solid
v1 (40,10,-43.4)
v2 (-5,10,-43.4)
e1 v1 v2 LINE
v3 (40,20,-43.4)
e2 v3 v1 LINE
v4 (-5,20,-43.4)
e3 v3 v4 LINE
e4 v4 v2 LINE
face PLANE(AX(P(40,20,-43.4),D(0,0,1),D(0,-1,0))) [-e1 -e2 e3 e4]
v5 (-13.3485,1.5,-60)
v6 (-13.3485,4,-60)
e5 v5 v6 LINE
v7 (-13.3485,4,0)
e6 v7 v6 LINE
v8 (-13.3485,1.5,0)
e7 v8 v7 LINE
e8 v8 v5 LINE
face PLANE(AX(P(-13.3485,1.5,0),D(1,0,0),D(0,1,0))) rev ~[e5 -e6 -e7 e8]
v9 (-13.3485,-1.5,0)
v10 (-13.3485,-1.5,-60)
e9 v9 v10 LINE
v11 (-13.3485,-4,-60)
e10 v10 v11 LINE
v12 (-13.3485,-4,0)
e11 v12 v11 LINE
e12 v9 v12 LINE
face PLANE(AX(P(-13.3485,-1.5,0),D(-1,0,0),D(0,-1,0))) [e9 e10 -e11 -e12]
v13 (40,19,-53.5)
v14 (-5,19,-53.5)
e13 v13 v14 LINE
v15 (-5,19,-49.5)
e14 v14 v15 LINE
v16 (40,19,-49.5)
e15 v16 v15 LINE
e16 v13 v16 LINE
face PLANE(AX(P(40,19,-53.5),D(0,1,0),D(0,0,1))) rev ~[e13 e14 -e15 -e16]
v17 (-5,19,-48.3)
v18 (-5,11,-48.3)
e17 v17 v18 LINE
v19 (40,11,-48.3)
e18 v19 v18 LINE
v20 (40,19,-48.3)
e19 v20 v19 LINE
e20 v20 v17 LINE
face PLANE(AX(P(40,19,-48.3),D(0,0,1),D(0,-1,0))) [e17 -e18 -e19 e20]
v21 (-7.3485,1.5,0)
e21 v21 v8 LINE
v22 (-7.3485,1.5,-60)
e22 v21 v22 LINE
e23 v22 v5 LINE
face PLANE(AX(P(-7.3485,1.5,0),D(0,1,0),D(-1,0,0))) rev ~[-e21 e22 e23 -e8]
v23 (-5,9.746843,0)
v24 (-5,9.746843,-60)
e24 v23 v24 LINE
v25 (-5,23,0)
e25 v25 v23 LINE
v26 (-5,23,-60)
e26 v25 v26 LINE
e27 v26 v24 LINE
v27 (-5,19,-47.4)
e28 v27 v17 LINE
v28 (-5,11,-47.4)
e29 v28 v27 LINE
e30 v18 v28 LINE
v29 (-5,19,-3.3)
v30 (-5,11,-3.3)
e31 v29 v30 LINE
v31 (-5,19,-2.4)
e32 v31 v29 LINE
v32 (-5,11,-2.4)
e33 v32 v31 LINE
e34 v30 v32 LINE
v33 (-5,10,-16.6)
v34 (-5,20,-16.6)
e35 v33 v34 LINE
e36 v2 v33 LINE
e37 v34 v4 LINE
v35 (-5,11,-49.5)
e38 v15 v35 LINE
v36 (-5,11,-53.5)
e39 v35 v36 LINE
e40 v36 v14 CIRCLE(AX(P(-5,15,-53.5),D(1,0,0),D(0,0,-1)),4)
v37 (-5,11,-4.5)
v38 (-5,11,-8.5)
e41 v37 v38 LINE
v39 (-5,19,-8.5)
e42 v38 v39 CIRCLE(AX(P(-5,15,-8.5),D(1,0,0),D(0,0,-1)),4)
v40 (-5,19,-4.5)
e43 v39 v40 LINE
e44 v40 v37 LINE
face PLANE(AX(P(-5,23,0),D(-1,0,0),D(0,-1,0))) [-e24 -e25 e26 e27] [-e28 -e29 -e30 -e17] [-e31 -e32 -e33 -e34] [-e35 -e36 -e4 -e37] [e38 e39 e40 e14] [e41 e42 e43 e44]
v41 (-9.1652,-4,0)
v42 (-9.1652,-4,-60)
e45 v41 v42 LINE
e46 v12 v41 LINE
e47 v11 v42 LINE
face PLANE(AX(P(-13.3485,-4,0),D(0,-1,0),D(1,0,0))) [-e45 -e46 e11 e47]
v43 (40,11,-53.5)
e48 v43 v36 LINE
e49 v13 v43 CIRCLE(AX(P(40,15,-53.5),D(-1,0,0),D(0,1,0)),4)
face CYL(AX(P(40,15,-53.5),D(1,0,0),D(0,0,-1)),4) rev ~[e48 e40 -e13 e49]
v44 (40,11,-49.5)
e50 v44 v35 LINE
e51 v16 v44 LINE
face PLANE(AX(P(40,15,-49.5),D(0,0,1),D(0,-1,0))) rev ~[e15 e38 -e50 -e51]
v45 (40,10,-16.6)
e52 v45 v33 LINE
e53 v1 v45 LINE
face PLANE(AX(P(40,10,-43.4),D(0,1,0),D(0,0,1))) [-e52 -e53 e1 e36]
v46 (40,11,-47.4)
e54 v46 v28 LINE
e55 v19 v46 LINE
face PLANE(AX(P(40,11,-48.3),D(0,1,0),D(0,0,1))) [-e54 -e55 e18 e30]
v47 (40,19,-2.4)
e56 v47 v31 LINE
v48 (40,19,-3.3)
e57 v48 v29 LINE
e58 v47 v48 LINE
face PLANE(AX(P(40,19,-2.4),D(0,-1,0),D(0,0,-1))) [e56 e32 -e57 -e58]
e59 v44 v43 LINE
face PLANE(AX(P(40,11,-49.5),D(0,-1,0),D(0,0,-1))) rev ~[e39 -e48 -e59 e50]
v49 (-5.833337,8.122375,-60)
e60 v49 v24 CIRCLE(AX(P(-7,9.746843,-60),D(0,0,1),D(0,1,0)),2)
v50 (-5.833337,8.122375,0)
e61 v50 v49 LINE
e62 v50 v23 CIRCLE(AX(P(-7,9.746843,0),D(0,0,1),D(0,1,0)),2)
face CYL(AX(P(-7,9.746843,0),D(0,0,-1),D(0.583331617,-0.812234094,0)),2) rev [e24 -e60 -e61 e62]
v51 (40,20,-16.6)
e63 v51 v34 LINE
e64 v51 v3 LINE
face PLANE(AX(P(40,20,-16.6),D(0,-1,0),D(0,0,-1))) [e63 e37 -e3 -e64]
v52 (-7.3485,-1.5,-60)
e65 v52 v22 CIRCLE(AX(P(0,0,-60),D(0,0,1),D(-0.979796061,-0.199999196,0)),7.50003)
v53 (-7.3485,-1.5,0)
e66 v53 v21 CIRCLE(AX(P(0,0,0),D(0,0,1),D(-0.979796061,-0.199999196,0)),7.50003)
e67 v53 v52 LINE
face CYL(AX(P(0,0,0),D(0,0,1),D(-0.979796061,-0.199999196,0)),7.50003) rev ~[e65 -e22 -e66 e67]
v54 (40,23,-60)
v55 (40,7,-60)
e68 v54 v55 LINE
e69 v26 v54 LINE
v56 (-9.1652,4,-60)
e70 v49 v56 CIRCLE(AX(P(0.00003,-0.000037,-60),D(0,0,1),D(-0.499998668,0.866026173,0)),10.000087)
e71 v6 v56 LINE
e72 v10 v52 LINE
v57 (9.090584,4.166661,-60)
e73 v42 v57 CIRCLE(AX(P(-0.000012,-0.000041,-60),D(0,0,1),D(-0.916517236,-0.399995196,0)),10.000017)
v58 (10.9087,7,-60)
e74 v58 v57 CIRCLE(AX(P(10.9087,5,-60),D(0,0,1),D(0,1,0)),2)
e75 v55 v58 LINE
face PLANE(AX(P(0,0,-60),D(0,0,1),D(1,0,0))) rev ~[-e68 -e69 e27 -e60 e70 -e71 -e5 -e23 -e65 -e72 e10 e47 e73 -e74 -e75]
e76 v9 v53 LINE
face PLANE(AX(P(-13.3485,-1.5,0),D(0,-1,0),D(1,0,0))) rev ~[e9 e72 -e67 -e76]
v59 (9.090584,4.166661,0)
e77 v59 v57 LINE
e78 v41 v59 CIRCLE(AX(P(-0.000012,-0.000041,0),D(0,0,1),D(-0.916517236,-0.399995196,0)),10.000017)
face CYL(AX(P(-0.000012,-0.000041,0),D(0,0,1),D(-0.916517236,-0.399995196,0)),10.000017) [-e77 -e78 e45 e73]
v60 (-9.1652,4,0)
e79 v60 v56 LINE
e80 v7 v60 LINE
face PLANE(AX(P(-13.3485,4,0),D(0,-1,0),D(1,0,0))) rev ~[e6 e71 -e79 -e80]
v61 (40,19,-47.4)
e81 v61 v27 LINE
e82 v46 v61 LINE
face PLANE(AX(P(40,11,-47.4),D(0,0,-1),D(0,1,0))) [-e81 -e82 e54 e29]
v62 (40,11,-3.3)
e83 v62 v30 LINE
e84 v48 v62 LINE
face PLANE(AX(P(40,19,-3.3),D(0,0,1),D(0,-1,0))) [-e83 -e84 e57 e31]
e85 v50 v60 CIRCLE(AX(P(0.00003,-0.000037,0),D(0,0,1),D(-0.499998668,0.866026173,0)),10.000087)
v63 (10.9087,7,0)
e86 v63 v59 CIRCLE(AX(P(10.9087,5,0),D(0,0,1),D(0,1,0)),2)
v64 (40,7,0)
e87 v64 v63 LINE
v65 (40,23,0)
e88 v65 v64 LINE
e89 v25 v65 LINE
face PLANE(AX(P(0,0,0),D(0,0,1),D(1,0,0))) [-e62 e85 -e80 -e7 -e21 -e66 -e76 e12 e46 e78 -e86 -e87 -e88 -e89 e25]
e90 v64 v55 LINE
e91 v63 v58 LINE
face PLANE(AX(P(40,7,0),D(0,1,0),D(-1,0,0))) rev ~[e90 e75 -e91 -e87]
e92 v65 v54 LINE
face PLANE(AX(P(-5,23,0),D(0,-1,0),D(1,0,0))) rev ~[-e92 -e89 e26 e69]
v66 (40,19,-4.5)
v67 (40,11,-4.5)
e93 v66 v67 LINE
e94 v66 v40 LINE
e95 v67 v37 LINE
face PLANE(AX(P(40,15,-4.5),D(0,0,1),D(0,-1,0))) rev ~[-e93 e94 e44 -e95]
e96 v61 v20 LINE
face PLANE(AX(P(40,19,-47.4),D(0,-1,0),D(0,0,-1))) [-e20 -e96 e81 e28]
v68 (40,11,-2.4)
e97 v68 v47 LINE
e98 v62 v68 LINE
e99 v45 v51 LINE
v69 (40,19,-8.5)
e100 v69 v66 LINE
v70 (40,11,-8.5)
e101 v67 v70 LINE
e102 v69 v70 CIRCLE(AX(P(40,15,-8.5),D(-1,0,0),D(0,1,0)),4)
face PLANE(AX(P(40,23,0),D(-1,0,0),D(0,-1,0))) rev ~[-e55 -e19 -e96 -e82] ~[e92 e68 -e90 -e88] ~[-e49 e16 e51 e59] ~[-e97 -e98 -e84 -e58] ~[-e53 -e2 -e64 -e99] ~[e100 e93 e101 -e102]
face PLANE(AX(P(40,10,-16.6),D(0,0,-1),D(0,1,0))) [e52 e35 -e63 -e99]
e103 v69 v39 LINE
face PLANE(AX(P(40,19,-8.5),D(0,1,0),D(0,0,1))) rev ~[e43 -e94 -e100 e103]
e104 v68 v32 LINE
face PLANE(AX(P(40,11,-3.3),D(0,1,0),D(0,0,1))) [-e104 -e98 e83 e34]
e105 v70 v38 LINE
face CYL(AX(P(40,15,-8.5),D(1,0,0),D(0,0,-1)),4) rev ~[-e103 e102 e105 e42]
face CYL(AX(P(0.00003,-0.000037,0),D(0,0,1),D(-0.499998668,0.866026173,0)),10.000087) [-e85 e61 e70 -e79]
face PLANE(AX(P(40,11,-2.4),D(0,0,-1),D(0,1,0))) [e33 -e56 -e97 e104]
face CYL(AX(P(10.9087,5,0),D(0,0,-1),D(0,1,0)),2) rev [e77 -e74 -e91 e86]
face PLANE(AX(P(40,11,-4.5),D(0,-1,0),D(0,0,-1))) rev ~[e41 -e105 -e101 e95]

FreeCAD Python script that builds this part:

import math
import FreeCAD as App
import Part
import Sketcher

V = App.Vector


def edges_at(feature, points):
    """Names of the edges that pass closest to the given points."""
    edges = feature.Shape.Edges
    near = lambda p: min(range(len(edges)), key=lambda i: edges[i].distToShape(Part.Vertex(*p))[0])
    return sorted({f"Edge{near(p) + 1}" for p in points})


def add_polygon(sketch, points):
    """Adds a closed chain of lines whose ends are joined by coincident constraints."""
    first, n = sketch.GeometryCount, len(points)
    for a, b in zip(points, points[1:] + points[:1]):
        sketch.addGeometry(Part.LineSegment(App.Vector(*a, 0), App.Vector(*b, 0)), False)
    for i in range(n):
        sketch.addConstraint(Sketcher.Constraint("Coincident", first + i, 2, first + (i + 1) % n, 1))

doc = App.newDocument("Part")
params = doc.addObject("Spreadsheet::Sheet", "Params")
for row, (alias, value) in enumerate([
    ("sketch1_radius", "10 mm"),
    ("sketch1_radius2", "7.5 mm"),
    ("sketch1_width", "6 mm"),
    ("sketch1_width2", "45 mm"),
    ("sketch1_height", "16 mm"),
    ("pad1_length", "60 mm"),
    ("fillet_radius", "2 mm"),
    ("sketch2_radius", "4 mm"),
    ("sketch2_width", "10 mm"),
    ("sketch2_height", "4 mm"),
    ("sketch2_height2", "0.9 mm"),
    ("sketch2_height3", "26.8 mm"),
], start=1):
    params.set(f"A{row}", alias)
    params.set(f"B{row}", "=" + value)
    params.setAlias(f"B{row}", alias)

body = doc.addObject("PartDesign::Body", "Body")

# Sketch on XY plane
sketch1 = body.newObject("Sketcher::SketchObject", "Sketch")
sketch1.AttachmentSupport = (doc.getObject("XY_Plane"), [""])
sketch1.MapMode = "FlatFace"
sketch1.addGeometry(Part.LineSegment(V(-13.3, 1.5, 0), V(-7.3, 1.5, 0)), False)
sketch1.addGeometry(Part.ArcOfCircle(Part.Circle(V(0, 0, 0), V(0, 0, 1), 7.5), math.radians(-168), math.radians(168)), False)
sketch1.addGeometry(Part.LineSegment(V(-7.3, -1.5, 0), V(-13.3, -1.5, 0)), False)
sketch1.addGeometry(Part.LineSegment(V(-13.3, -1.5, 0), V(-13.3, -4, 0)), False)
sketch1.addGeometry(Part.LineSegment(V(-13.3, -4, 0), V(-9.2, -4, 0)), False)
sketch1.addGeometry(Part.ArcOfCircle(Part.Circle(V(0, 0, 0), V(0, 0, 1), 10), math.radians(-156), math.radians(44)), False)
sketch1.addGeometry(Part.LineSegment(V(7.1, 7, 0), V(40, 7, 0)), False)
sketch1.addGeometry(Part.LineSegment(V(40, 7, 0), V(40, 23, 0)), False)
sketch1.addGeometry(Part.LineSegment(V(40, 23, 0), V(-5, 23, 0)), False)
sketch1.addGeometry(Part.LineSegment(V(-5, 23, 0), V(-5, 8.7, 0)), False)
sketch1.addGeometry(Part.ArcOfCircle(Part.Circle(V(0, 0, 0), V(0, 0, 1), 10), math.radians(120), math.radians(156)), False)
sketch1.addGeometry(Part.LineSegment(V(-9.2, 4, 0), V(-13.3, 4, 0)), False)
sketch1.addGeometry(Part.LineSegment(V(-13.3, 4, 0), V(-13.3, 1.5, 0)), False)
sketch1.addConstraint(Sketcher.Constraint("Coincident", 0, 2, 1, 2))
sketch1.addConstraint(Sketcher.Constraint("Coincident", 1, 1, 2, 1))
sketch1.addConstraint(Sketcher.Constraint("Coincident", 2, 2, 3, 1))
sketch1.addConstraint(Sketcher.Constraint("Coincident", 3, 2, 4, 1))
sketch1.addConstraint(Sketcher.Constraint("Coincident", 4, 2, 5, 1))
sketch1.addConstraint(Sketcher.Constraint("Coincident", 5, 2, 6, 1))
sketch1.addConstraint(Sketcher.Constraint("Coincident", 6, 2, 7, 1))
sketch1.addConstraint(Sketcher.Constraint("Coincident", 7, 2, 8, 1))
sketch1.addConstraint(Sketcher.Constraint("Coincident", 8, 2, 9, 1))
sketch1.addConstraint(Sketcher.Constraint("Coincident", 9, 2, 10, 1))
sketch1.addConstraint(Sketcher.Constraint("Coincident", 10, 2, 11, 1))
sketch1.addConstraint(Sketcher.Constraint("Coincident", 11, 2, 12, 1))
sketch1.addConstraint(Sketcher.Constraint("Coincident", 12, 2, 0, 1))
sketch1.addConstraint(Sketcher.Constraint("Horizontal", 0))
sketch1.addConstraint(Sketcher.Constraint("Horizontal", 2))
sketch1.addConstraint(Sketcher.Constraint("Vertical", 3))
sketch1.addConstraint(Sketcher.Constraint("Horizontal", 4))
sketch1.addConstraint(Sketcher.Constraint("Horizontal", 6))
sketch1.addConstraint(Sketcher.Constraint("Vertical", 7))
sketch1.addConstraint(Sketcher.Constraint("Horizontal", 8))
sketch1.addConstraint(Sketcher.Constraint("Vertical", 9))
sketch1.addConstraint(Sketcher.Constraint("Horizontal", 11))
sketch1.addConstraint(Sketcher.Constraint("Vertical", 12))
sketch1.addConstraint(Sketcher.Constraint("Coincident", 1, 3, -1, 1))
sketch1.addConstraint(Sketcher.Constraint("Coincident", 5, 3, -1, 1))
sketch1.addConstraint(Sketcher.Constraint("Coincident", 10, 3, -1, 1))
sketch1.addConstraint(Sketcher.Constraint("Equal", 5, 10))
sketch1.addConstraint(Sketcher.Constraint("Symmetric", 3, 2, 11, 2, -1))
sketch1.addConstraint(Sketcher.Constraint("Vertical", 0, 2, 1, 1))
sketch1.addConstraint(Sketcher.Constraint("Radius", 5, 10.0))
sketch1.addConstraint(Sketcher.Constraint("Radius", 1, 7.5))
sketch1.addConstraint(Sketcher.Constraint("DistanceX", 0, 1, 0, 2, 6.0))
sketch1.addConstraint(Sketcher.Constraint("DistanceX", 8, 2, 8, 1, 45.0))
sketch1.addConstraint(Sketcher.Constraint("DistanceY", 7, 1, 7, 2, 16.0))
sketch1.addConstraint(Sketcher.Constraint("DistanceY", 3, 2, 3, 1, 2.5))
sketch1.addConstraint(Sketcher.Constraint("DistanceX", 8, 2, -1, 1, 5.0))
sketch1.addConstraint(Sketcher.Constraint("DistanceY", 1, 1, 0, 2, 3.0))
sketch1.addConstraint(Sketcher.Constraint("DistanceY", -1, 1, 5, 2, 7.0))
sketch1.setExpression("Constraints[29]", "Params.sketch1_radius")
sketch1.setExpression("Constraints[30]", "Params.sketch1_radius2")
sketch1.setExpression("Constraints[31]", "Params.sketch1_width")
sketch1.setExpression("Constraints[32]", "Params.sketch1_width2")
sketch1.setExpression("Constraints[33]", "Params.sketch1_height")
pad1 = body.newObject("PartDesign::Pad", "Pad")
pad1.Profile = sketch1
pad1.setExpression("Length", "Params.pad1_length")
pad1.Reversed = True
doc.recompute()

fillet = body.newObject("PartDesign::Fillet", "Fillet")
fillet.Base = (pad1, edges_at(pad1, [(7.141, 7, -30), (-5, 8.66, -30)]))
fillet.setExpression("Radius", "Params.fillet_radius")

# Sketch on YZ plane
sketch2 = body.newObject("Sketcher::SketchObject", "Sketch001")
sketch2.AttachmentSupport = (doc.getObject("YZ_Plane"), [""])
sketch2.MapMode = "FlatFace"
sketch2.AttachmentOffset = App.Placement(V(0, 0, 40), App.Rotation())
sketch2.addGeometry(Part.ArcOfCircle(Part.Circle(V(15, -8.5, 0), V(0, 0, 1), 4), math.radians(180), math.radians(360)), False)  # 0
sketch2.addGeometry(Part.LineSegment(V(19, -8.5, 0), V(19, -4.5, 0)), False)  # 1
sketch2.addGeometry(Part.LineSegment(V(19, -4.5, 0), V(11, -4.5, 0)), False)  # 2
sketch2.addGeometry(Part.LineSegment(V(11, -4.5, 0), V(11, -8.5, 0)), False)  # 3
add_polygon(sketch2, [(11, -2.4), (11, -3.3), (19, -3.3), (19, -2.4)])  # lines 4-7
sketch2.addGeometry(Part.ArcOfCircle(Part.Circle(V(15, -53.5, 0), V(0, 0, 1), 4), math.radians(180), math.radians(360)), False)  # 8
sketch2.addGeometry(Part.LineSegment(V(19, -53.5, 0), V(19, -49.5, 0)), False)  # 9
sketch2.addGeometry(Part.LineSegment(V(19, -49.5, 0), V(11, -49.5, 0)), False)  # 10
sketch2.addGeometry(Part.LineSegment(V(11, -49.5, 0), V(11, -53.5, 0)), False)  # 11
add_polygon(sketch2, [(11, -47.4), (11, -48.3), (19, -48.3), (19, -47.4)])  # lines 12-15
add_polygon(sketch2, [(10, -16.6), (10, -43.4), (20, -43.4), (20, -16.6)])  # lines 16-19
sketch2.addConstraint(Sketcher.Constraint("Tangent", 0, 2, 1, 1))
sketch2.addConstraint(Sketcher.Constraint("Coincident", 1, 2, 2, 1))
sketch2.addConstraint(Sketcher.Constraint("Coincident", 2, 2, 3, 1))
sketch2.addConstraint(Sketcher.Constraint("Tangent", 3, 2, 0, 1))
sketch2.addConstraint(Sketcher.Constraint("Tangent", 8, 2, 9, 1))
sketch2.addConstraint(Sketcher.Constraint("Coincident", 9, 2, 10, 1))
sketch2.addConstraint(Sketcher.Constraint("Coincident", 10, 2, 11, 1))
sketch2.addConstraint(Sketcher.Constraint("Tangent", 11, 2, 8, 1))
sketch2.addConstraint(Sketcher.Constraint("Vertical", 1))
sketch2.addConstraint(Sketcher.Constraint("Horizontal", 2))
sketch2.addConstraint(Sketcher.Constraint("Vertical", 3))
sketch2.addConstraint(Sketcher.Constraint("Vertical", 4))
sketch2.addConstraint(Sketcher.Constraint("Horizontal", 5))
sketch2.addConstraint(Sketcher.Constraint("Vertical", 6))
sketch2.addConstraint(Sketcher.Constraint("Horizontal", 7))
sketch2.addConstraint(Sketcher.Constraint("Vertical", 9))
sketch2.addConstraint(Sketcher.Constraint("Horizontal", 10))
sketch2.addConstraint(Sketcher.Constraint("Vertical", 11))
sketch2.addConstraint(Sketcher.Constraint("Vertical", 12))
sketch2.addConstraint(Sketcher.Constraint("Horizontal", 13))
sketch2.addConstraint(Sketcher.Constraint("Vertical", 14))
sketch2.addConstraint(Sketcher.Constraint("Horizontal", 15))
sketch2.addConstraint(Sketcher.Constraint("Vertical", 16))
sketch2.addConstraint(Sketcher.Constraint("Horizontal", 17))
sketch2.addConstraint(Sketcher.Constraint("Vertical", 18))
sketch2.addConstraint(Sketcher.Constraint("Horizontal", 19))
sketch2.addConstraint(Sketcher.Constraint("Equal", 0, 8))
sketch2.addConstraint(Sketcher.Constraint("Vertical", 0, 3, 8, 3))
sketch2.addConstraint(Sketcher.Constraint("Vertical", 3, 2, 4, 2))
sketch2.addConstraint(Sketcher.Constraint("Vertical", 1, 2, 5, 2))
sketch2.addConstraint(Sketcher.Constraint("Vertical", 11, 2, 12, 2))
sketch2.addConstraint(Sketcher.Constraint("Vertical", 9, 2, 13, 2))
sketch2.addConstraint(Sketcher.Constraint("Equal", 3, 9))
sketch2.addConstraint(Sketcher.Constraint("Equal", 6, 12))
sketch2.addConstraint(Sketcher.Constraint("Radius", 0, 4.0))
sketch2.addConstraint(Sketcher.Constraint("DistanceX", 17, 1, 17, 2, 10.0))
sketch2.addConstraint(Sketcher.Constraint("DistanceY", 1, 1, 1, 2, 4.0))
sketch2.addConstraint(Sketcher.Constraint("DistanceY", 4, 2, 4, 1, 0.9))
sketch2.addConstraint(Sketcher.Constraint("DistanceX", -1, 1, 16, 2, 10.0))
sketch2.addConstraint(Sketcher.Constraint("DistanceY", 8, 3, 0, 3, 45.0))
sketch2.addConstraint(Sketcher.Constraint("DistanceY", 15, 2, 16, 2, 4.0))
sketch2.addConstraint(Sketcher.Constraint("DistanceY", 6, 2, -1, 1, 2.4))
sketch2.addConstraint(Sketcher.Constraint("DistanceY", 2, 2, 4, 2, 1.2))
sketch2.addConstraint(Sketcher.Constraint("DistanceY", 10, 2, 12, 2, 1.2))
sketch2.addConstraint(Sketcher.Constraint("DistanceY", 16, 2, 16, 1, 26.8))
sketch2.addConstraint(Sketcher.Constraint("DistanceX", -1, 1, 0, 3, 15.0))
sketch2.setExpression("Constraints[46]", "Params.sketch2_radius")
sketch2.setExpression("Constraints[47]", "Params.sketch2_width")
sketch2.setExpression("Constraints[48]", "Params.sketch2_height")
sketch2.setExpression("Constraints[49]", "Params.sketch2_height2")
sketch2.setExpression("Constraints[56]", "Params.sketch2_height3")
pocket1 = body.newObject("PartDesign::Pocket", "Pocket")
pocket1.Profile = sketch2
pocket1.Type = "UpToFirst"

doc.recompute()
